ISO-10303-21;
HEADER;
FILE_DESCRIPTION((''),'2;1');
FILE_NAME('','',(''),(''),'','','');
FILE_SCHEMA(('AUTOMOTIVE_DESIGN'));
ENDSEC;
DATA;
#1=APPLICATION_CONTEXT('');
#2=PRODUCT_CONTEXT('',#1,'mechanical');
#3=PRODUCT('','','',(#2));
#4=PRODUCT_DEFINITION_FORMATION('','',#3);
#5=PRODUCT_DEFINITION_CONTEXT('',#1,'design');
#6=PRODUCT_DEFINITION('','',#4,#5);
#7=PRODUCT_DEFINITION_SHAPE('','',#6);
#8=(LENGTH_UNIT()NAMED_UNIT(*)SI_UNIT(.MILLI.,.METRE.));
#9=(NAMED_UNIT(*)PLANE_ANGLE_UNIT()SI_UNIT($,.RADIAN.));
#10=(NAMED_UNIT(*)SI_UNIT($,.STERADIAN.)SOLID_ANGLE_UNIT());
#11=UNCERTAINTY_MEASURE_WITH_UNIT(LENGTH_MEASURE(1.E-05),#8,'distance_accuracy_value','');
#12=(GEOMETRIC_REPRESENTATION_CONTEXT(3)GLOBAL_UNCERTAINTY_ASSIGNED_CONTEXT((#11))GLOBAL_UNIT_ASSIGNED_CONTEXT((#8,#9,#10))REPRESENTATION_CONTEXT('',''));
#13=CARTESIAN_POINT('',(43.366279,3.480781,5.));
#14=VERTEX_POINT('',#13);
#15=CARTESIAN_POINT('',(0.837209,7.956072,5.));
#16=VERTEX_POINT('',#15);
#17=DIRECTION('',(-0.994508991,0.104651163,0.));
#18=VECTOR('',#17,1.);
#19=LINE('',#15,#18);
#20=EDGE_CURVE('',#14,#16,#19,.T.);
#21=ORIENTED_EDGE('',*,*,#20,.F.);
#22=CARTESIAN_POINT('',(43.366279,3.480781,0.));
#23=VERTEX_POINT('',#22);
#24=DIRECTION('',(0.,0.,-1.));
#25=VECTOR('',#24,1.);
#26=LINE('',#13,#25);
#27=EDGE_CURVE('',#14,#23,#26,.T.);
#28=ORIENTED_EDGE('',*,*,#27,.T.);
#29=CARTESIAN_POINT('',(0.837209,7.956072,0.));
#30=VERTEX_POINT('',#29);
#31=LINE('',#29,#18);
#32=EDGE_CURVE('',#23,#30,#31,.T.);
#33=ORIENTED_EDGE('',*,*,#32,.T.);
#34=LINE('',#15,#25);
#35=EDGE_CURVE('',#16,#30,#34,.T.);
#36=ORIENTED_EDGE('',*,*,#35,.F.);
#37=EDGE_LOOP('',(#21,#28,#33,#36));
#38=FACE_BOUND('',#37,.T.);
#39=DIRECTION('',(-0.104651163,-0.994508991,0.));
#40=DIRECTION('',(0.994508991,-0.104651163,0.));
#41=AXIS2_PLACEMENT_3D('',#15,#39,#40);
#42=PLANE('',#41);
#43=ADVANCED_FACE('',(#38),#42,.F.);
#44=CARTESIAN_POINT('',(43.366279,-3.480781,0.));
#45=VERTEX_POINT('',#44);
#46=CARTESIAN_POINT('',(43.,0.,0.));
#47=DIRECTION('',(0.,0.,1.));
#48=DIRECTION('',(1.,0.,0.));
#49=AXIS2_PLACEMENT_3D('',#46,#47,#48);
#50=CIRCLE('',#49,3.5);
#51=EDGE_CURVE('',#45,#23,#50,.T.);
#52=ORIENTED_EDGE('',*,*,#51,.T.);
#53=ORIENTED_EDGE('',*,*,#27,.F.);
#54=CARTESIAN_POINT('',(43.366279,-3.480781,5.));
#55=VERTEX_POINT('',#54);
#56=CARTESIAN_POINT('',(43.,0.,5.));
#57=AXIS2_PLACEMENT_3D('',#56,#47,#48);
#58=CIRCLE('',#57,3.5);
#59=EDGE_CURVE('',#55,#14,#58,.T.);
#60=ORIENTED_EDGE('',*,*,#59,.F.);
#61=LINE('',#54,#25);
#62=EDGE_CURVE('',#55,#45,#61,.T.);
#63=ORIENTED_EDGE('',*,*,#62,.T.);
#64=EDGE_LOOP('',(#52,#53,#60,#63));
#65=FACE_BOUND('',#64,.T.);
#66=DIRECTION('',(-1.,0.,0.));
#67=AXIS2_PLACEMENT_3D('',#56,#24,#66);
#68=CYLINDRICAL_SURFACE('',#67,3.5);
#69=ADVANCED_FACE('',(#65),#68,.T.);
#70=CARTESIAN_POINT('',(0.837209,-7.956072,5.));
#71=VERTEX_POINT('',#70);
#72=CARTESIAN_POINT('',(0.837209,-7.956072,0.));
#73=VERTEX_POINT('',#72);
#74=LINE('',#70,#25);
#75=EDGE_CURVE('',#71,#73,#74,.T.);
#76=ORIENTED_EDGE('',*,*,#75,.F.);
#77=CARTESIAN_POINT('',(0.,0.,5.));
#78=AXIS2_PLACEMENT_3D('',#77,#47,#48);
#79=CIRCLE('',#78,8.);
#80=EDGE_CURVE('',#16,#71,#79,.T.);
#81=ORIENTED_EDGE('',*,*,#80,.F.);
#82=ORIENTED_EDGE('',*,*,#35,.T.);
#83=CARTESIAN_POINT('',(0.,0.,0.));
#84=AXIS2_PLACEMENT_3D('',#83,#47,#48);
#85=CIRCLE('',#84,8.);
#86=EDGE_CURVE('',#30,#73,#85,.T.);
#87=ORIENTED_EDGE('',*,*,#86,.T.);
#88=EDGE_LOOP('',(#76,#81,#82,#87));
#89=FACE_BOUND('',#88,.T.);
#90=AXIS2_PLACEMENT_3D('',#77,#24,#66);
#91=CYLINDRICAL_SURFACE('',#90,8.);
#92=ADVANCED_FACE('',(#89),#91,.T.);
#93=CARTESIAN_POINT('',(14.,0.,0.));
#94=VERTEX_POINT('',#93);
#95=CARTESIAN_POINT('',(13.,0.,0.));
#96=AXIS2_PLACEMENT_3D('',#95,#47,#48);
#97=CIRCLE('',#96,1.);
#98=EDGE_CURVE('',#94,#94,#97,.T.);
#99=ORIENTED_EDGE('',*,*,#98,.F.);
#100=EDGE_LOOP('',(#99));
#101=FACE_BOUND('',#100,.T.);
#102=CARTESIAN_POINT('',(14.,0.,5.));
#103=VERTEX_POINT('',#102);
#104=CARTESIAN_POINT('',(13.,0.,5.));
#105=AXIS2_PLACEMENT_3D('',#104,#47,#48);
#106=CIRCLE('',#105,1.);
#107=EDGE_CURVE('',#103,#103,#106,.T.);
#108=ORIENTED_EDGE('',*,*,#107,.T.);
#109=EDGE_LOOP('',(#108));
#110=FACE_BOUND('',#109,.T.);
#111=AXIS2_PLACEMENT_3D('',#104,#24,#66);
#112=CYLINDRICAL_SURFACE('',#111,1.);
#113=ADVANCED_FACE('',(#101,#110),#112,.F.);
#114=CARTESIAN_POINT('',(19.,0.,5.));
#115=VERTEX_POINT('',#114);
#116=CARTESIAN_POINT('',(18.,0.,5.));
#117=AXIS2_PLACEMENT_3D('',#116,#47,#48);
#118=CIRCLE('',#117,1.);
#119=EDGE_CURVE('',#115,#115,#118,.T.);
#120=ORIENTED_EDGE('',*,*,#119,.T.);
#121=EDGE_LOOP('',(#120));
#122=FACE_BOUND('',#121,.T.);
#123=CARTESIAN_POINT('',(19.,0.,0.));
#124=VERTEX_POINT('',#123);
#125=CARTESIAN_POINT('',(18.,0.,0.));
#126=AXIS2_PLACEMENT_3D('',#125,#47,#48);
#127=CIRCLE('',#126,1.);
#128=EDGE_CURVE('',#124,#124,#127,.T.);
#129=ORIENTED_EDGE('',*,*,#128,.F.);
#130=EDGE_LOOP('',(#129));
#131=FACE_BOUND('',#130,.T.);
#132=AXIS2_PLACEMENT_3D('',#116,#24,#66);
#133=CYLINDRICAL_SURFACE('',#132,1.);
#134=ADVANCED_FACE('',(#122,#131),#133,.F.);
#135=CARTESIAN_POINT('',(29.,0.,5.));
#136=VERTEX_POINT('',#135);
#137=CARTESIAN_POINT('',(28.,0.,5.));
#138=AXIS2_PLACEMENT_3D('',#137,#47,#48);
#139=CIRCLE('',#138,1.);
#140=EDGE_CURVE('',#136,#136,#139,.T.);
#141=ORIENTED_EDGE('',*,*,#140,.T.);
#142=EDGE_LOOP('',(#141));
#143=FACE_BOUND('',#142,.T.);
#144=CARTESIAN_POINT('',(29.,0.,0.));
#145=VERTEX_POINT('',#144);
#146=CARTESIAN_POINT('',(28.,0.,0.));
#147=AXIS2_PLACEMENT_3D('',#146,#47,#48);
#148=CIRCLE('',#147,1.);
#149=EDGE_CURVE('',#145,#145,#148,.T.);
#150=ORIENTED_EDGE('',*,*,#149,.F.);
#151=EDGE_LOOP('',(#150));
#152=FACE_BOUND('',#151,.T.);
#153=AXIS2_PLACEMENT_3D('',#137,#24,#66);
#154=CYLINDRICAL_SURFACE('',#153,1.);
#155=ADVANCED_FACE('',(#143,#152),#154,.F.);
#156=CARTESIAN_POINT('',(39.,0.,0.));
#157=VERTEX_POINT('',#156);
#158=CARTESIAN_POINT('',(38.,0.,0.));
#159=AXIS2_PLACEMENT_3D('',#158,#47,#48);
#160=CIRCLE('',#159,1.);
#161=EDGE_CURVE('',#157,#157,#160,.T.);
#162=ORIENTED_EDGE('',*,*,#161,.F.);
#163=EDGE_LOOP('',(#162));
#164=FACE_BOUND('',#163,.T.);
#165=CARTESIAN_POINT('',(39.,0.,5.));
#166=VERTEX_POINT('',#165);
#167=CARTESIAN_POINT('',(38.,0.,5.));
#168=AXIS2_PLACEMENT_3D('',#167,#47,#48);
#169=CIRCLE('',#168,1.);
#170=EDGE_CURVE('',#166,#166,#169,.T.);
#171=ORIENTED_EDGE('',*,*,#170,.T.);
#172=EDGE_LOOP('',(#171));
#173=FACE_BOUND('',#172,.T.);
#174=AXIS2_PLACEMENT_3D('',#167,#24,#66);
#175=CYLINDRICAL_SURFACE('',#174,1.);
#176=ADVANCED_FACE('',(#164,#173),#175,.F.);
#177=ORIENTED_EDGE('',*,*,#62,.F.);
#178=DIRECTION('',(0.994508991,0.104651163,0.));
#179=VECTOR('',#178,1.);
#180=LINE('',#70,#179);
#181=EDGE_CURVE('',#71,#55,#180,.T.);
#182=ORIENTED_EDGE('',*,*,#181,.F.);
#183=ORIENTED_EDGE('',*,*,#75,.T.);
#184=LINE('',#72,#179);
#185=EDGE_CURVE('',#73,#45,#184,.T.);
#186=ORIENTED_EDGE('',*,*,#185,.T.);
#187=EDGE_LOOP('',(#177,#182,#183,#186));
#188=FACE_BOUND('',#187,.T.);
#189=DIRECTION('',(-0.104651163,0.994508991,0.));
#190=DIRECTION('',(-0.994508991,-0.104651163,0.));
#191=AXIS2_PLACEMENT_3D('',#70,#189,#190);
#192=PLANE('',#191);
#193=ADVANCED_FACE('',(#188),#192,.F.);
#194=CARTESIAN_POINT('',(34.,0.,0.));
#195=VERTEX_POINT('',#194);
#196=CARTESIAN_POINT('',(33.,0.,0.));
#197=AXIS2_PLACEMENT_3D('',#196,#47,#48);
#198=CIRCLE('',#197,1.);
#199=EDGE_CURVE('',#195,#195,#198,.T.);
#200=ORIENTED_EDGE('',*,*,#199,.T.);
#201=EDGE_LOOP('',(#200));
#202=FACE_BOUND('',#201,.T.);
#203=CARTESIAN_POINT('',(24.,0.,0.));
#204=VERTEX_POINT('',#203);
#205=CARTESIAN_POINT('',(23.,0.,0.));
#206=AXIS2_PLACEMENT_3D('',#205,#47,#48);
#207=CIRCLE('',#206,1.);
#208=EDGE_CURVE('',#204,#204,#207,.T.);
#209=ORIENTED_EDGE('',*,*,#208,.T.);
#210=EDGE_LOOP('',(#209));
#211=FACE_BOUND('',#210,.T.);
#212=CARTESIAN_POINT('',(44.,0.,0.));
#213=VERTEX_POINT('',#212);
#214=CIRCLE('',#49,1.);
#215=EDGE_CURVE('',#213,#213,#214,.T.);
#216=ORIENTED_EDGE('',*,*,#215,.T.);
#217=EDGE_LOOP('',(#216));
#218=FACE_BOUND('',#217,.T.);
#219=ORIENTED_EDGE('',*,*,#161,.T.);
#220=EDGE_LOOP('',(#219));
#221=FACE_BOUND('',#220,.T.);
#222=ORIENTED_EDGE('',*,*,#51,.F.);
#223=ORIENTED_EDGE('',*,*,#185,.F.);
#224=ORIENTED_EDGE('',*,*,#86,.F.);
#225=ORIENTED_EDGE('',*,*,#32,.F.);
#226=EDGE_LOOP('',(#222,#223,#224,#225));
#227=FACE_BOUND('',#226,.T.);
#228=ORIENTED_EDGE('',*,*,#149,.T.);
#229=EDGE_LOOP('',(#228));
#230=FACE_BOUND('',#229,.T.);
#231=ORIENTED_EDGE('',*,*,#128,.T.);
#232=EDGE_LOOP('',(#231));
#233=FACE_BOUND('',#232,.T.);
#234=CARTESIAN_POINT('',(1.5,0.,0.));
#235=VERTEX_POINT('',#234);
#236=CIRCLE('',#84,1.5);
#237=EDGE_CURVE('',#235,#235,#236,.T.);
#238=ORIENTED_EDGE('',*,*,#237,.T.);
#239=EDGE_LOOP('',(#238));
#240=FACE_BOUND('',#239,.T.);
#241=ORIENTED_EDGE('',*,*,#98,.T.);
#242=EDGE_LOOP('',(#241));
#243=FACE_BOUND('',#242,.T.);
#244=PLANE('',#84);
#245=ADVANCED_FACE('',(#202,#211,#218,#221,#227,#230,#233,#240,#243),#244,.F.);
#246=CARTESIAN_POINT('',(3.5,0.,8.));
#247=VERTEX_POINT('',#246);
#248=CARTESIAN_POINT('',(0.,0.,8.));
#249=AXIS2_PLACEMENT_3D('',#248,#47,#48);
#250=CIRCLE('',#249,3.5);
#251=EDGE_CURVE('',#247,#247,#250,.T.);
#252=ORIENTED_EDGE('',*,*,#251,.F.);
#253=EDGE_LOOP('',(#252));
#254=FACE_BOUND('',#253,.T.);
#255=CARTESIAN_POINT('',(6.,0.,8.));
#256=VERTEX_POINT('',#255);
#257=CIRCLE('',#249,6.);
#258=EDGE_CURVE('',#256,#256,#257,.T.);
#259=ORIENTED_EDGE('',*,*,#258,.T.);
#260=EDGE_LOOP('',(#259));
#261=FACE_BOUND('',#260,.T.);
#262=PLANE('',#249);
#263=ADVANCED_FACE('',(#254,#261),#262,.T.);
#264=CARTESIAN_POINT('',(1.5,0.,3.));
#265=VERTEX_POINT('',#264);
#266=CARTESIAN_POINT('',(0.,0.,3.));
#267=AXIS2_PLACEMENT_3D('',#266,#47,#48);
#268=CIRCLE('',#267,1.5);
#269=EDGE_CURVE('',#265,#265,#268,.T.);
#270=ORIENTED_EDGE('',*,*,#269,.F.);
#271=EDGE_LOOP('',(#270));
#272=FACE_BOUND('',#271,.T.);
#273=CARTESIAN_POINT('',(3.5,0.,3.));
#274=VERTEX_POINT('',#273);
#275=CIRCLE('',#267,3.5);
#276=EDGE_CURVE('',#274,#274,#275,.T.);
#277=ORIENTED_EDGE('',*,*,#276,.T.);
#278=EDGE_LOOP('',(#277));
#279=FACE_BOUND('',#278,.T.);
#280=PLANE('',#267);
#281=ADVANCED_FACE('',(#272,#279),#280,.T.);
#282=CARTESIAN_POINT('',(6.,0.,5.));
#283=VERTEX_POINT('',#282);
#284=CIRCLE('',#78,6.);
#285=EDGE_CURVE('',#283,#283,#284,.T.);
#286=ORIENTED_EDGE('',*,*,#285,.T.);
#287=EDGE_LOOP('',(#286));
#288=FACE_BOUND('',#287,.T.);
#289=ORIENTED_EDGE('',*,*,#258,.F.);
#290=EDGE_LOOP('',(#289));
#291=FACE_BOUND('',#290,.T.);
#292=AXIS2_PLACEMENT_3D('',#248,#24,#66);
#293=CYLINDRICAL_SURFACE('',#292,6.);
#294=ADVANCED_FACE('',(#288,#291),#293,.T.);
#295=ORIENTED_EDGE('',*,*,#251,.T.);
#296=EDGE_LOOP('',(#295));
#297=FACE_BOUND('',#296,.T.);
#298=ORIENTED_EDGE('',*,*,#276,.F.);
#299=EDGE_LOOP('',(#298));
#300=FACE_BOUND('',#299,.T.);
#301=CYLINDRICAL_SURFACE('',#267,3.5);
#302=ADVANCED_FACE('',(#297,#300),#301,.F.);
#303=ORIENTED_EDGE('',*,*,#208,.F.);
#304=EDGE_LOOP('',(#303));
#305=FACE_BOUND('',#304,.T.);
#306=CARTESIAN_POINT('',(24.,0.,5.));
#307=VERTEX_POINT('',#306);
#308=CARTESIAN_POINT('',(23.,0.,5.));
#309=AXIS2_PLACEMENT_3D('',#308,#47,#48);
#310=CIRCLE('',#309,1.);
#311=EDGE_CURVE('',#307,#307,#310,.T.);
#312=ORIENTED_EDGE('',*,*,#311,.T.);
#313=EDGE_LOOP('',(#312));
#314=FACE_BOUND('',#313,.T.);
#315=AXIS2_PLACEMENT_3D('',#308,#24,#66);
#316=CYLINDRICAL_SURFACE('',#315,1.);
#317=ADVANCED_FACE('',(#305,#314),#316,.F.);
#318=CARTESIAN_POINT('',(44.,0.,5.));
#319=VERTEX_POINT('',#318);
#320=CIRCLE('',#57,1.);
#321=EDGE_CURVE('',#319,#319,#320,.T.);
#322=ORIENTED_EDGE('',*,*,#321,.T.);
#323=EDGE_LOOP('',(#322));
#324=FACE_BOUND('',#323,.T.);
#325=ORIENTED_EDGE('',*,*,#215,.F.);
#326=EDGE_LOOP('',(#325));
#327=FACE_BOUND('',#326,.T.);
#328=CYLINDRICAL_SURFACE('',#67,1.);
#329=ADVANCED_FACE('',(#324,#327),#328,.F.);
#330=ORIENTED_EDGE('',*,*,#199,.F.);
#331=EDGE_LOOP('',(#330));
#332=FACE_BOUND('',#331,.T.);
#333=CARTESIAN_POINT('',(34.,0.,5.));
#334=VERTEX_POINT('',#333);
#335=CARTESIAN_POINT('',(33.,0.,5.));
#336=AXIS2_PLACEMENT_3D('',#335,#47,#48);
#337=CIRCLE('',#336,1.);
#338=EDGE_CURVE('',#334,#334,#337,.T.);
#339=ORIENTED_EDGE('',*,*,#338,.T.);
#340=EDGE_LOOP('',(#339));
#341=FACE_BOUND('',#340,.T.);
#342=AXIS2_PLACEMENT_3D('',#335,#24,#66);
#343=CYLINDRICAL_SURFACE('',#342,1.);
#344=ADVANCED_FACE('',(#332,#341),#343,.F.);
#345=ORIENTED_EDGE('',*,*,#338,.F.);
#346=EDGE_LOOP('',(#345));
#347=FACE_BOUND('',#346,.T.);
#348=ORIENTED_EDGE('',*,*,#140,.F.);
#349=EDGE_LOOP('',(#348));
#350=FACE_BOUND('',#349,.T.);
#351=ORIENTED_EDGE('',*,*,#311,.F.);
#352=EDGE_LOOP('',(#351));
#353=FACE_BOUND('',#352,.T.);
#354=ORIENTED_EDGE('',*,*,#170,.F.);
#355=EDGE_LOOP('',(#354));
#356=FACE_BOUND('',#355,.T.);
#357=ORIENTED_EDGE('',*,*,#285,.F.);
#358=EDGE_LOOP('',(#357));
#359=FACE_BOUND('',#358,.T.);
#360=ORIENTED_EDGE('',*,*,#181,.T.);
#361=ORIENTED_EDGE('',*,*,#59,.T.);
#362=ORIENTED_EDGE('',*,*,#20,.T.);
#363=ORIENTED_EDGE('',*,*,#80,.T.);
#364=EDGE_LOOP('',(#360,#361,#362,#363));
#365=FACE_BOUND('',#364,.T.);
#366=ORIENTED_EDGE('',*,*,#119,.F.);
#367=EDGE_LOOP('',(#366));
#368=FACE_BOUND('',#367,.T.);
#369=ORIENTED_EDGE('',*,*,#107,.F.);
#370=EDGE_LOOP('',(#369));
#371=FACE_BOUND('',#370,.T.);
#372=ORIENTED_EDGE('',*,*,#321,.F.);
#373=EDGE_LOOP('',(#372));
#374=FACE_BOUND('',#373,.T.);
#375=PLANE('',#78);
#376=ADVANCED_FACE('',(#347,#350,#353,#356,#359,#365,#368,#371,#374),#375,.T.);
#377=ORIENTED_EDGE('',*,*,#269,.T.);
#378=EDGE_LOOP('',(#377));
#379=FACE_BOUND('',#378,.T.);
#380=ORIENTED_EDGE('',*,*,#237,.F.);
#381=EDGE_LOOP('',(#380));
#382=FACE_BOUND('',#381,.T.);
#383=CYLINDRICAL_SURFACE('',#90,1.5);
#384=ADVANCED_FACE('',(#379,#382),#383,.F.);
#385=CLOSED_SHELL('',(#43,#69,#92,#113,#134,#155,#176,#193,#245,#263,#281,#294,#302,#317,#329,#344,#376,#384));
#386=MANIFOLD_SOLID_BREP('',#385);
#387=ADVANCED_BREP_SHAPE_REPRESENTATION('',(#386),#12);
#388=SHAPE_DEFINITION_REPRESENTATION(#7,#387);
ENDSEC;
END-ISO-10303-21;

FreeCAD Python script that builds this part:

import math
import FreeCAD as App
import Part
import Sketcher
from FreeCAD import Vector
Q = App.Units.Quantity

doc = App.newDocument("Part")
body = doc.addObject("PartDesign::Body", "Body")

sketch1 = doc.addObject("Sketcher::SketchObject", "Sketch")
body.addObject(sketch1)
sketch1.AttachmentSupport = (doc.XY_Plane, [""])
sketch1.MapMode = "FlatFace"
sketch1.addGeometry([
    Part.LineSegment(Vector(43.4, 3.5, 0), Vector(0.8, 8, 0)),
    Part.ArcOfCircle(Part.Circle(Vector(0, 0, 0), Vector(0, 0, 1), 8), math.radians(84), math.radians(276)),
    Part.LineSegment(Vector(0.8, -8, 0), Vector(43.4, -3.5, 0)),
    Part.ArcOfCircle(Part.Circle(Vector(43, 0, 0), Vector(0, 0, 1), 3.5), math.radians(-84), math.radians(84)),
    Part.Circle(Vector(43, 0, 0), Vector(0, 0, 1), 1),
    Part.Circle(Vector(38, 0, 0), Vector(0, 0, 1), 1),
    Part.Circle(Vector(33, 0, 0), Vector(0, 0, 1), 1),
    Part.Circle(Vector(28, 0, 0), Vector(0, 0, 1), 1),
    Part.Circle(Vector(23, 0, 0), Vector(0, 0, 1), 1),
    Part.Circle(Vector(18, 0, 0), Vector(0, 0, 1), 1),
    Part.Circle(Vector(13, 0, 0), Vector(0, 0, 1), 1),
    Part.Circle(Vector(0, 0, 0), Vector(0, 0, 1), 1.5),
], False)
sketch1.addConstraint([
    Sketcher.Constraint("Tangent", 0, 2, 1, 1),
    Sketcher.Constraint("Tangent", 1, 2, 2, 1),
    Sketcher.Constraint("Tangent", 2, 2, 3, 1),
    Sketcher.Constraint("Tangent", 3, 2, 0, 1),
    Sketcher.Constraint("Coincident", 1, 3, -1, 1),
    Sketcher.Constraint("Coincident", 11, 3, -1, 1),
    Sketcher.Constraint("Coincident", 4, 3, 3, 3),
    Sketcher.Constraint("Equal", 4, 5),
    Sketcher.Constraint("Equal", 5, 6),
    Sketcher.Constraint("Equal", 6, 7),
    Sketcher.Constraint("Equal", 7, 8),
    Sketcher.Constraint("Equal", 8, 9),
    Sketcher.Constraint("Equal", 9, 10),
    Sketcher.Constraint("PointOnObject", 3, 3, -1),
    Sketcher.Constraint("PointOnObject", 5, 3, -1),
    Sketcher.Constraint("PointOnObject", 6, 3, -1),
    Sketcher.Constraint("PointOnObject", 7, 3, -1),
    Sketcher.Constraint("PointOnObject", 8, 3, -1),
    Sketcher.Constraint("PointOnObject", 9, 3, -1),
    Sketcher.Constraint("PointOnObject", 10, 3, -1),
    Sketcher.Constraint("Diameter", 4, Q("2 mm")),
    Sketcher.Constraint("Diameter", 11, Q("3 mm")),
    Sketcher.Constraint("Radius", 1, Q("8 mm")),
    Sketcher.Constraint("Radius", 3, Q("3.5 mm")),
    Sketcher.Constraint("DistanceX", -1, 1, 3, 3, Q("43 mm")),
    Sketcher.Constraint("DistanceX", -1, 1, 5, 3, Q("38 mm")),
    Sketcher.Constraint("DistanceX", -1, 1, 6, 3, Q("33 mm")),
    Sketcher.Constraint("DistanceX", -1, 1, 7, 3, Q("28 mm")),
    Sketcher.Constraint("DistanceX", -1, 1, 8, 3, Q("23 mm")),
    Sketcher.Constraint("DistanceX", -1, 1, 9, 3, Q("18 mm")),
    Sketcher.Constraint("DistanceX", -1, 1, 10, 3, Q("13 mm")),
])
pad1 = doc.addObject("PartDesign::Pad", "Pad")
body.addObject(pad1)
pad1.Profile = sketch1
pad1.Length = 5

sketch2 = doc.addObject("Sketcher::SketchObject", "Sketch001")
body.addObject(sketch2)
sketch2.AttachmentSupport = (doc.XY_Plane, [""])
sketch2.MapMode = "FlatFace"
sketch2.AttachmentOffset = App.Placement(Vector(0, 0, 5), App.Rotation())
sketch2.addGeometry(Part.Circle(Vector(0, 0, 0), Vector(0, 0, 1), 6), False)
sketch2.addConstraint([
    Sketcher.Constraint("Coincident", 0, 3, -1, 1),
    Sketcher.Constraint("Diameter", 0, Q("12 mm")),
])
pad2 = doc.addObject("PartDesign::Pad", "Pad001")
body.addObject(pad2)
pad2.Profile = sketch2
pad2.Length = 3

sketch3 = doc.addObject("Sketcher::SketchObject", "Sketch002")
body.addObject(sketch3)
sketch3.AttachmentSupport = (doc.XY_Plane, [""])
sketch3.MapMode = "FlatFace"
sketch3.AttachmentOffset = App.Placement(Vector(0, 0, 8), App.Rotation())
sketch3.addGeometry(Part.Circle(Vector(0, 0, 0), Vector(0, 0, 1), 3.5), False)
sketch3.addConstraint([
    Sketcher.Constraint("Coincident", 0, 3, -1, 1),
    Sketcher.Constraint("Diameter", 0, Q("7 mm")),
])
pocket1 = doc.addObject("PartDesign::Pocket", "Pocket")
body.addObject(pocket1)
pocket1.Profile = sketch3
pocket1.Length = 5

doc.recompute()
